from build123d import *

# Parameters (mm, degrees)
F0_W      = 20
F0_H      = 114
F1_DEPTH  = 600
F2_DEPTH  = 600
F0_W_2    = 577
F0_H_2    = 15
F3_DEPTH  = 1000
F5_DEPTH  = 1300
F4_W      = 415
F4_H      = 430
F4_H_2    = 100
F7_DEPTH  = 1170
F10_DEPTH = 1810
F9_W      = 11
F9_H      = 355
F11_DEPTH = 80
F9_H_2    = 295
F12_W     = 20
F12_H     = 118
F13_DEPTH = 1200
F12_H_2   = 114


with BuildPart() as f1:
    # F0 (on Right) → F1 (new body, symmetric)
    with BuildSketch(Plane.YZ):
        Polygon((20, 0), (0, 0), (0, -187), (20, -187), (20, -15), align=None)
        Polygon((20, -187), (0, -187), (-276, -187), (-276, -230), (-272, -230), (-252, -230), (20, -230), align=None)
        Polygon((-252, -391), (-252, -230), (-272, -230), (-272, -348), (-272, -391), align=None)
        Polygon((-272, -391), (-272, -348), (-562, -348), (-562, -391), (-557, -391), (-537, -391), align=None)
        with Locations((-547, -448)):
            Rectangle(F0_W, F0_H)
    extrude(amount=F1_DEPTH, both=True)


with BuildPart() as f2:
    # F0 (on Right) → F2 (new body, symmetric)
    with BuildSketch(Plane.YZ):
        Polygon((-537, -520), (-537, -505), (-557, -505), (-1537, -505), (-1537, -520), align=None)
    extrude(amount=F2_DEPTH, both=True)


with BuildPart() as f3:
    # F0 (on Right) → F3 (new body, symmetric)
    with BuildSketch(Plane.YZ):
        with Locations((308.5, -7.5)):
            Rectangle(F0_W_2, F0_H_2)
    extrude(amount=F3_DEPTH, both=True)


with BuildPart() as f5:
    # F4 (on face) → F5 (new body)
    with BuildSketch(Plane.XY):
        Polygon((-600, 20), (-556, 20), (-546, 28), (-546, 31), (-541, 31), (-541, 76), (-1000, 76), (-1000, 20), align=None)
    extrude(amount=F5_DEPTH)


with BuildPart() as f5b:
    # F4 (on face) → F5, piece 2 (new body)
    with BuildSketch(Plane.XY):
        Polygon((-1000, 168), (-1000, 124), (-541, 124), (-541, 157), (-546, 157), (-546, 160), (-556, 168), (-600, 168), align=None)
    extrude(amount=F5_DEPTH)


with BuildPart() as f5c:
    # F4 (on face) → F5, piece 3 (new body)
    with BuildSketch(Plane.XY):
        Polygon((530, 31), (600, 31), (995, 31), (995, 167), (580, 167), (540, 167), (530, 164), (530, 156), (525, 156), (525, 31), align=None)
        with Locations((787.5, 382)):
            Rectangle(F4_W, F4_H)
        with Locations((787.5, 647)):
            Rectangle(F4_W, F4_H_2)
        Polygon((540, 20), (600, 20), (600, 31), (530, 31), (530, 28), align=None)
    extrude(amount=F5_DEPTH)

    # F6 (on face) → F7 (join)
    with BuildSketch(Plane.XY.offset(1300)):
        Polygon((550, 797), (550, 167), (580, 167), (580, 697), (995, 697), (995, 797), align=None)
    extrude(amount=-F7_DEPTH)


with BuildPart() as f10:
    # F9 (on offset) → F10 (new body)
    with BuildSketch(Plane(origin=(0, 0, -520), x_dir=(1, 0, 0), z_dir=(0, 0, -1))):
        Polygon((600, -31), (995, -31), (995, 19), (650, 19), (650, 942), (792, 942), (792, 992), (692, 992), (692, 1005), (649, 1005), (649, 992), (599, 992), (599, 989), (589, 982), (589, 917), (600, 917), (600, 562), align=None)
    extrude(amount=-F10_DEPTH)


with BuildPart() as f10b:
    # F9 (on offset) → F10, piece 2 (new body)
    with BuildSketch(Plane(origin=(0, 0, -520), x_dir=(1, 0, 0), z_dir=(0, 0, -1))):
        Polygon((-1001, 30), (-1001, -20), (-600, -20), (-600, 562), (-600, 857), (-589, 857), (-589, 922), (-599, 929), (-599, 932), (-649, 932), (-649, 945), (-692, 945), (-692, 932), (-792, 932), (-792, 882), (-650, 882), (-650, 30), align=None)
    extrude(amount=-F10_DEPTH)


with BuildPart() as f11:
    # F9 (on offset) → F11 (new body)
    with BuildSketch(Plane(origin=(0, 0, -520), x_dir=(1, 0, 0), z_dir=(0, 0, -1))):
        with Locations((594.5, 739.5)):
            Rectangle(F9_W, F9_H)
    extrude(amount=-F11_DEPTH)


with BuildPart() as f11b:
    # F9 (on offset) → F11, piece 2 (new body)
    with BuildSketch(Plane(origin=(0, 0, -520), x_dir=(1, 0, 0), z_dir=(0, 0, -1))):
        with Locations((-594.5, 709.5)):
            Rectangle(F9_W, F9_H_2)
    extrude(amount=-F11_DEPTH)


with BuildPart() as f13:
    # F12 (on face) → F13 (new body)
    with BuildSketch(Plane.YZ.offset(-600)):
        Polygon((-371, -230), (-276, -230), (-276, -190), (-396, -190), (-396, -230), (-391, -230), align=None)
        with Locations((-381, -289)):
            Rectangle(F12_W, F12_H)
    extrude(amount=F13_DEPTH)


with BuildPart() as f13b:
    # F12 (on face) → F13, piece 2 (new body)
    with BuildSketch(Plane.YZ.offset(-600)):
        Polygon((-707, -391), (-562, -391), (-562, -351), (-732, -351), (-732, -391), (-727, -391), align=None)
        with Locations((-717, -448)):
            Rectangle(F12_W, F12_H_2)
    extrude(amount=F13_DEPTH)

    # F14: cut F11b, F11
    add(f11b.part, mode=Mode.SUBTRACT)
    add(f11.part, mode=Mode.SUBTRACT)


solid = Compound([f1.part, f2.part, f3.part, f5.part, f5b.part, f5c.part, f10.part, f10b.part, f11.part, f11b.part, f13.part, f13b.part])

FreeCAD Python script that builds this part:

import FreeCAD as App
import Part
import Sketcher
from FreeCAD import Vector

doc = App.newDocument("Part")
params = doc.addObject("Spreadsheet::Sheet", "Params")
for row, (alias, value) in enumerate([
    ("sketch1_width", "20 mm"),
    ("sketch1_width2", "276 mm"),
    ("sketch1_width3", "4 mm"),
    ("sketch1_width4", "290 mm"),
    ("sketch1_width5", "5 mm"),
    ("pad1_length", "1200 mm"),
    ("sketch2_width", "1000 mm"),
    ("sketch2_height", "15 mm"),
    ("pad2_length", "1200 mm"),
    ("sketch3_width", "577 mm"),
    ("sketch3_height", "15 mm"),
    ("pad3_length", "2000 mm"),
    ("sketch4_width", "5 mm"),
    ("sketch4_width2", "459 mm"),
    ("sketch4_width3", "444 mm"),
    ("sketch4_height", "3 mm"),
    ("sketch4_height2", "45 mm"),
    ("pad4_length", "1300 mm"),
    ("sketch5_width", "459 mm"),
    ("sketch5_width2", "5 mm"),
    ("sketch5_width3", "444 mm"),
    ("sketch5_height", "44 mm"),
    ("sketch5_height2", "33 mm"),
    ("pad5_length", "1300 mm"),
    ("sketch6_width", "415 mm"),
    ("sketch6_width2", "40 mm"),
    ("sketch6_width3", "5 mm"),
    ("sketch6_width4", "60 mm"),
    ("sketch6_height", "666 mm"),
    ("pad6_length", "1300 mm"),
    ("sketch7_width", "30 mm"),
    ("sketch7_width2", "415 mm"),
    ("sketch7_height", "630 mm"),
    ("sketch7_height2", "530 mm"),
    ("pad7_length", "1170 mm"),
    ("sketch8_width", "395 mm"),
    ("sketch8_width2", "345 mm"),
    ("sketch8_width3", "142 mm"),
    ("sketch8_width4", "100 mm"),
    ("sketch8_width5", "43 mm"),
    ("pad8_length", "1810 mm"),
    ("sketch9_width", "401 mm"),
    ("sketch9_width2", "11 mm"),
    ("sketch9_width3", "50 mm"),
    ("sketch9_width4", "43 mm"),
    ("sketch9_width5", "100 mm"),
    ("pad9_length", "1810 mm"),
    ("sketch10_width", "11 mm"),
    ("sketch10_height", "355 mm"),
    ("pad10_length", "80 mm"),
    ("sketch11_width", "11 mm"),
    ("sketch11_height", "295 mm"),
    ("pad11_length", "80 mm"),
    ("sketch12_width", "120 mm"),
    ("sketch12_width2", "5 mm"),
    ("sketch12_width3", "20 mm"),
    ("sketch12_height", "40 mm"),
    ("sketch12_height2", "118 mm"),
    ("pad12_length", "1200 mm"),
    ("sketch13_width", "170 mm"),
    ("sketch13_width2", "5 mm"),
    ("sketch13_width3", "20 mm"),
    ("sketch13_height", "40 mm"),
    ("sketch13_height2", "114 mm"),
    ("pad13_length", "1200 mm"),
], start=1):
    params.set(f"A{row}", alias)
    params.set(f"B{row}", "=" + value)
    params.setAlias(f"B{row}", alias)

body = doc.addObject("PartDesign::Body", "Body")

sketch1 = doc.addObject("Sketcher::SketchObject", "Sketch")
body.addObject(sketch1)
sketch1.AttachmentSupport = (doc.YZ_Plane, [""])
sketch1.MapMode = "FlatFace"
sketch1.addGeometry([
    Part.LineSegment(Vector(20, 0, 0), Vector(0, 0, 0)),
    Part.LineSegment(Vector(0, 0, 0), Vector(0, -187, 0)),
    Part.LineSegment(Vector(0, -187, 0), Vector(-276, -187, 0)),
    Part.LineSegment(Vector(-276, -187, 0), Vector(-276, -230, 0)),
    Part.LineSegment(Vector(-276, -230, 0), Vector(-272, -230, 0)),
    Part.LineSegment(Vector(-272, -230, 0), Vector(-272, -348, 0)),
    Part.LineSegment(Vector(-272, -348, 0), Vector(-562, -348, 0)),
    Part.LineSegment(Vector(-562, -348, 0), Vector(-562, -391, 0)),
    Part.LineSegment(Vector(-562, -391, 0), Vector(-557, -391, 0)),
    Part.LineSegment(Vector(-557, -391, 0), Vector(-557, -505, 0)),
    Part.LineSegment(Vector(-557, -505, 0), Vector(-537, -505, 0)),
    Part.LineSegment(Vector(-537, -505, 0), Vector(-537, -391, 0)),
    Part.LineSegment(Vector(-537, -391, 0), Vector(-252, -391, 0)),
    Part.LineSegment(Vector(-252, -391, 0), Vector(-252, -230, 0)),
    Part.LineSegment(Vector(-252, -230, 0), Vector(20, -230, 0)),
    Part.LineSegment(Vector(20, -230, 0), Vector(20, 0, 0)),
], False)
sketch1.addConstraint([
    Sketcher.Constraint("Coincident", 0, 2, 1, 1),
    Sketcher.Constraint("Coincident", 1, 2, 2, 1),
    Sketcher.Constraint("Coincident", 2, 2, 3, 1),
    Sketcher.Constraint("Coincident", 3, 2, 4, 1),
    Sketcher.Constraint("Coincident", 4, 2, 5, 1),
    Sketcher.Constraint("Coincident", 5, 2, 6, 1),
    Sketcher.Constraint("Coincident", 6, 2, 7, 1),
    Sketcher.Constraint("Coincident", 7, 2, 8, 1),
    Sketcher.Constraint("Coincident", 8, 2, 9, 1),
    Sketcher.Constraint("Coincident", 9, 2, 10, 1),
    Sketcher.Constraint("Coincident", 10, 2, 11, 1),
    Sketcher.Constraint("Coincident", 11, 2, 12, 1),
    Sketcher.Constraint("Coincident", 12, 2, 13, 1),
    Sketcher.Constraint("Coincident", 13, 2, 14, 1),
    Sketcher.Constraint("Coincident", 14, 2, 15, 1),
    Sketcher.Constraint("Coincident", 15, 2, 0, 1),
    Sketcher.Constraint("Horizontal", 0),
    Sketcher.Constraint("Vertical", 1),
    Sketcher.Constraint("Horizontal", 2),
    Sketcher.Constraint("Vertical", 3),
    Sketcher.Constraint("Horizontal", 4),
    Sketcher.Constraint("Vertical", 5),
    Sketcher.Constraint("Horizontal", 6),
    Sketcher.Constraint("Vertical", 7),
    Sketcher.Constraint("Horizontal", 8),
    Sketcher.Constraint("Vertical", 9),
    Sketcher.Constraint("Horizontal", 10),
    Sketcher.Constraint("Vertical", 11),
    Sketcher.Constraint("Horizontal", 12),
    Sketcher.Constraint("Vertical", 13),
    Sketcher.Constraint("Horizontal", 14),
    Sketcher.Constraint("Vertical", 15),
    Sketcher.Constraint("Coincident", 0, 2, -1, 1),
    Sketcher.Constraint("Horizontal", 8, 2, 11, 2),
    Sketcher.Constraint("Horizontal", 4, 2, 13, 2),
    Sketcher.Constraint("Equal", 0, 10),
    Sketcher.Constraint("Equal", 3, 7),
    Sketcher.Constraint("DistanceX", 0, 2, 0, 1, 20.0),
    Sketcher.Constraint("DistanceX", 2, 2, 2, 1, 276.0),
    Sketcher.Constraint("DistanceX", 4, 1, 4, 2, 4.0),
    Sketcher.Constraint("DistanceX", 6, 2, 6, 1, 290.0),
    Sketcher.Constraint("DistanceX", 8, 1, 8, 2, 5.0),
    Sketcher.Constraint("DistanceX", 12, 1, 12, 2, 285.0),
    Sketcher.Constraint("DistanceY", 1, 2, 1, 1, 187.0),
    Sketcher.Constraint("DistanceY", 3, 2, 3, 1, 43.0),
    Sketcher.Constraint("DistanceY", 5, 2, 5, 1, 118.0),
    Sketcher.Constraint("DistanceY", 9, 2, 9, 1, 114.0),
])
sketch1.setExpression("Constraints[37]", "Params.sketch1_width")
sketch1.setExpression("Constraints[38]", "Params.sketch1_width2")
sketch1.setExpression("Constraints[39]", "Params.sketch1_width3")
sketch1.setExpression("Constraints[40]", "Params.sketch1_width4")
sketch1.setExpression("Constraints[41]", "Params.sketch1_width5")
pad1 = doc.addObject("PartDesign::Pad", "Pad")
body.addObject(pad1)
pad1.Profile = sketch1
pad1.setExpression("Length", "Params.pad1_length")
pad1.Midplane = True
body2 = doc.addObject("PartDesign::Body", "Body001")

sketch2 = doc.addObject("Sketcher::SketchObject", "Sketch001")
body2.addObject(sketch2)
sketch2.AttachmentSupport = (doc.getObject("YZ_Plane001"), [""])
sketch2.MapMode = "FlatFace"
sketch2.addGeometry([
    Part.LineSegment(Vector(-537, -520, 0), Vector(-537, -505, 0)),
    Part.LineSegment(Vector(-537, -505, 0), Vector(-1537, -505, 0)),
    Part.LineSegment(Vector(-1537, -505, 0), Vector(-1537, -520, 0)),
    Part.LineSegment(Vector(-1537, -520, 0), Vector(-537, -520, 0)),
], False)
sketch2.addConstraint([
    Sketcher.Constraint("Coincident", 0, 2, 1, 1),
    Sketcher.Constraint("Coincident", 1, 2, 2, 1),
    Sketcher.Constraint("Coincident", 2, 2, 3, 1),
    Sketcher.Constraint("Coincident", 3, 2, 0, 1),
    Sketcher.Constraint("Vertical", 0),
    Sketcher.Constraint("Horizontal", 1),
    Sketcher.Constraint("Vertical", 2),
    Sketcher.Constraint("Horizontal", 3),
    Sketcher.Constraint("DistanceX", 1, 2, 1, 1, 1000.0),
    Sketcher.Constraint("DistanceY", 0, 1, 0, 2, 15.0),
    Sketcher.Constraint("DistanceX", 0, 2, -1, 1, 537.0),
    Sketcher.Constraint("DistanceY", 0, 2, -1, 1, 505.0),
])
sketch2.setExpression("Constraints[8]", "Params.sketch2_width")
sketch2.setExpression("Constraints[9]", "Params.sketch2_height")
pad2 = doc.addObject("PartDesign::Pad", "Pad001")
body2.addObject(pad2)
pad2.Profile = sketch2
pad2.setExpression("Length", "Params.pad2_length")
pad2.Midplane = True
body3 = doc.addObject("PartDesign::Body", "Body002")

sketch3 = doc.addObject("Sketcher::SketchObject", "Sketch002")
body3.addObject(sketch3)
sketch3.AttachmentSupport = (doc.getObject("YZ_Plane002"), [""])
sketch3.MapMode = "FlatFace"
sketch3.addGeometry([
    Part.LineSegment(Vector(20, 0, 0), Vector(20, -15, 0)),
    Part.LineSegment(Vector(20, -15, 0), Vector(597, -15, 0)),
    Part.LineSegment(Vector(597, -15, 0), Vector(597, 0, 0)),
    Part.LineSegment(Vector(597, 0, 0), Vector(20, 0, 0)),
], False)
sketch3.addConstraint([
    Sketcher.Constraint("Coincident", 0, 2, 1, 1),
    Sketcher.Constraint("Coincident", 1, 2, 2, 1),
    Sketcher.Constraint("Coincident", 2, 2, 3, 1),
    Sketcher.Constraint("Coincident", 3, 2, 0, 1),
    Sketcher.Constraint("Vertical", 0),
    Sketcher.Constraint("Horizontal", 1),
    Sketcher.Constraint("Vertical", 2),
    Sketcher.Constraint("Horizontal", 3),
    Sketcher.Constraint("PointOnObject", 2, 2, -1),
    Sketcher.Constraint("DistanceX", 1, 1, 1, 2, 577.0),
    Sketcher.Constraint("DistanceY", 0, 2, 0, 1, 15.0),
    Sketcher.Constraint("DistanceX", -1, 1, 0, 2, 20.0),
])
sketch3.setExpression("Constraints[9]", "Params.sketch3_width")
sketch3.setExpression("Constraints[10]", "Params.sketch3_height")
pad3 = doc.addObject("PartDesign::Pad", "Pad002")
body3.addObject(pad3)
pad3.Profile = sketch3
pad3.setExpression("Length", "Params.pad3_length")
pad3.Midplane = True
body4 = doc.addObject("PartDesign::Body", "Body003")

sketch4 = doc.addObject("Sketcher::SketchObject", "Sketch003")
body4.addObject(sketch4)
sketch4.AttachmentSupport = (doc.getObject("XY_Plane003"), [""])
sketch4.MapMode = "FlatFace"
sketch4.addGeometry([
    Part.LineSegment(Vector(-556, 20, 0), Vector(-546, 28, 0)),
    Part.LineSegment(Vector(-546, 28, 0), Vector(-546, 31, 0)),
    Part.LineSegment(Vector(-546, 31, 0), Vector(-541, 31, 0)),
    Part.LineSegment(Vector(-541, 31, 0), Vector(-541, 76, 0)),
    Part.LineSegment(Vector(-541, 76, 0), Vector(-1000, 76, 0)),
    Part.LineSegment(Vector(-1000, 76, 0), Vector(-1000, 20, 0)),
    Part.LineSegment(Vector(-1000, 20, 0), Vector(-556, 20, 0)),
], False)
sketch4.addConstraint([
    Sketcher.Constraint("Coincident", 0, 2, 1, 1),
    Sketcher.Constraint("Coincident", 1, 2, 2, 1),
    Sketcher.Constraint("Coincident", 2, 2, 3, 1),
    Sketcher.Constraint("Coincident", 3, 2, 4, 1),
    Sketcher.Constraint("Coincident", 4, 2, 5, 1),
    Sketcher.Constraint("Coincident", 5, 2, 6, 1),
    Sketcher.Constraint("Coincident", 6, 2, 0, 1),
    Sketcher.Constraint("Vertical", 1),
    Sketcher.Constraint("Horizontal", 2),
    Sketcher.Constraint("Vertical", 3),
    Sketcher.Constraint("Horizontal", 4),
    Sketcher.Constraint("Vertical", 5),
    Sketcher.Constraint("Horizontal", 6),
    Sketcher.Constraint("DistanceX", 2, 1, 2, 2, 5.0),
    Sketcher.Constraint("DistanceX", 4, 2, 4, 1, 459.0),
    Sketcher.Constraint("DistanceX", 6, 1, 6, 2, 444.0),
    Sketcher.Constraint("DistanceY", 1, 1, 1, 2, 3.0),
    Sketcher.Constraint("DistanceY", 3, 1, 3, 2, 45.0),
    Sketcher.Constraint("DistanceY", 5, 2, 5, 1, 56.0),
    Sketcher.Constraint("DistanceX", 0, 2, -1, 1, 546.0),
    Sketcher.Constraint("DistanceY", -1, 1, 0, 2, 28.0),
])
sketch4.setExpression("Constraints[13]", "Params.sketch4_width")
sketch4.setExpression("Constraints[14]", "Params.sketch4_width2")
sketch4.setExpression("Constraints[15]", "Params.sketch4_width3")
sketch4.setExpression("Constraints[16]", "Params.sketch4_height")
sketch4.setExpression("Constraints[17]", "Params.sketch4_height2")
pad4 = doc.addObject("PartDesign::Pad", "Pad003")
body4.addObject(pad4)
pad4.Profile = sketch4
pad4.setExpression("Length", "Params.pad4_length")
body5 = doc.addObject("PartDesign::Body", "Body004")

sketch5 = doc.addObject("Sketcher::SketchObject", "Sketch004")
body5.addObject(sketch5)
sketch5.AttachmentSupport = (doc.getObject("XY_Plane004"), [""])
sketch5.MapMode = "FlatFace"
sketch5.addGeometry([
    Part.LineSegment(Vector(-1000, 168, 0), Vector(-1000, 124, 0)),
    Part.LineSegment(Vector(-1000, 124, 0), Vector(-541, 124, 0)),
    Part.LineSegment(Vector(-541, 124, 0), Vector(-541, 157, 0)),
    Part.LineSegment(Vector(-541, 157, 0), Vector(-546, 157, 0)),
    Part.LineSegment(Vector(-546, 157, 0), Vector(-546, 160, 0)),
    Part.LineSegment(Vector(-546, 160, 0), Vector(-556, 168, 0)),
    Part.LineSegment(Vector(-556, 168, 0), Vector(-1000, 168, 0)),
], False)
sketch5.addConstraint([
    Sketcher.Constraint("Coincident", 0, 2, 1, 1),
    Sketcher.Constraint("Coincident", 1, 2, 2, 1),
    Sketcher.Constraint("Coincident", 2, 2, 3, 1),
    Sketcher.Constraint("Coincident", 3, 2, 4, 1),
    Sketcher.Constraint("Coincident", 4, 2, 5, 1),
    Sketcher.Constraint("Coincident", 5, 2, 6, 1),
    Sketcher.Constraint("Coincident", 6, 2, 0, 1),
    Sketcher.Constraint("Vertical", 0),
    Sketcher.Constraint("Horizontal", 1),
    Sketcher.Constraint("Vertical", 2),
    Sketcher.Constraint("Horizontal", 3),
    Sketcher.Constraint("Vertical", 4),
    Sketcher.Constraint("Horizontal", 6),
    Sketcher.Constraint("DistanceX", 1, 1, 1, 2, 459.0),
    Sketcher.Constraint("DistanceX", 3, 2, 3, 1, 5.0),
    Sketcher.Constraint("DistanceX", 6, 2, 6, 1, 444.0),
    Sketcher.Constraint("DistanceY", 0, 2, 0, 1, 44.0),
    Sketcher.Constraint("DistanceY", 2, 1, 2, 2, 33.0),
    Sketcher.Constraint("DistanceY", 4, 1, 4, 2, 3.0),
    Sketcher.Constraint("DistanceX", 0, 2, -1, 1, 1000.0),
    Sketcher.Constraint("DistanceY", -1, 1, 0, 2, 124.0),
])
sketch5.setExpression("Constraints[13]", "Params.sketch5_width")
sketch5.setExpression("Constraints[14]", "Params.sketch5_width2")
sketch5.setExpression("Constraints[15]", "Params.sketch5_width3")
sketch5.setExpression("Constraints[16]", "Params.sketch5_height")
sketch5.setExpression("Constraints[17]", "Params.sketch5_height2")
pad5 = doc.addObject("PartDesign::Pad", "Pad004")
body5.addObject(pad5)
pad5.Profile = sketch5
pad5.setExpression("Length", "Params.pad5_length")
body6 = doc.addObject("PartDesign::Body", "Body005")

sketch6 = doc.addObject("Sketcher::SketchObject", "Sketch005")
body6.addObject(sketch6)
sketch6.AttachmentSupport = (doc.getObject("XY_Plane005"), [""])
sketch6.MapMode = "FlatFace"
sketch6.addGeometry([
    Part.LineSegment(Vector(995, 31, 0), Vector(995, 697, 0)),
    Part.LineSegment(Vector(995, 697, 0), Vector(580, 697, 0)),
    Part.LineSegment(Vector(580, 697, 0), Vector(580, 167, 0)),
    Part.LineSegment(Vector(580, 167, 0), Vector(540, 167, 0)),
    Part.LineSegment(Vector(540, 167, 0), Vector(530, 164, 0)),
    Part.LineSegment(Vector(530, 164, 0), Vector(530, 156, 0)),
    Part.LineSegment(Vector(530, 156, 0), Vector(525, 156, 0)),
    Part.LineSegment(Vector(525, 156, 0), Vector(525, 31, 0)),
    Part.LineSegment(Vector(525, 31, 0), Vector(530, 31, 0)),
    Part.LineSegment(Vector(530, 31, 0), Vector(530, 28, 0)),
    Part.LineSegment(Vector(530, 28, 0), Vector(540, 20, 0)),
    Part.LineSegment(Vector(540, 20, 0), Vector(600, 20, 0)),
    Part.LineSegment(Vector(600, 20, 0), Vector(600, 31, 0)),
    Part.LineSegment(Vector(600, 31, 0), Vector(995, 31, 0)),
], False)
sketch6.addConstraint([
    Sketcher.Constraint("Coincident", 0, 2, 1, 1),
    Sketcher.Constraint("Coincident", 1, 2, 2, 1),
    Sketcher.Constraint("Coincident", 2, 2, 3, 1),
    Sketcher.Constraint("Coincident", 3, 2, 4, 1),
    Sketcher.Constraint("Coincident", 4, 2, 5, 1),
    Sketcher.Constraint("Coincident", 5, 2, 6, 1),
    Sketcher.Constraint("Coincident", 6, 2, 7, 1),
    Sketcher.Constraint("Coincident", 7, 2, 8, 1),
    Sketcher.Constraint("Coincident", 8, 2, 9, 1),
    Sketcher.Constraint("Coincident", 9, 2, 10, 1),
    Sketcher.Constraint("Coincident", 10, 2, 11, 1),
    Sketcher.Constraint("Coincident", 11, 2, 12, 1),
    Sketcher.Constraint("Coincident", 12, 2, 13, 1),
    Sketcher.Constraint("Coincident", 13, 2, 0, 1),
    Sketcher.Constraint("Vertical", 0),
    Sketcher.Constraint("Horizontal", 1),
    Sketcher.Constraint("Vertical", 2),
    Sketcher.Constraint("Horizontal", 3),
    Sketcher.Constraint("Vertical", 5),
    Sketcher.Constraint("Horizontal", 6),
    Sketcher.Constraint("Vertical", 7),
    Sketcher.Constraint("Horizontal", 8),
    Sketcher.Constraint("Vertical", 9),
    Sketcher.Constraint("Horizontal", 11),
    Sketcher.Constraint("Vertical", 12),
    Sketcher.Constraint("Horizontal", 13),
    Sketcher.Constraint("Horizontal", 8, 2, 12, 2),
    Sketcher.Constraint("Vertical", 5, 2, 8, 2),
    Sketcher.Constraint("Vertical", 3, 2, 10, 2),
    Sketcher.Constraint("DistanceX", 1, 2, 1, 1, 415.0),
    Sketcher.Constraint("DistanceX", 3, 2, 3, 1, 40.0),
    Sketcher.Constraint("DistanceX", 6, 2, 6, 1, 5.0),
    Sketcher.Constraint("DistanceX", 11, 1, 11, 2, 60.0),
    Sketcher.Constraint("DistanceY", 0, 1, 0, 2, 666.0),
    Sketcher.Constraint("DistanceY", 2, 2, 2, 1, 530.0),
    Sketcher.Constraint("DistanceY", 5, 2, 5, 1, 8.0),
    Sketcher.Constraint("DistanceY", 7, 2, 7, 1, 125.0),
    Sketcher.Constraint("DistanceY", 9, 2, 9, 1, 3.0),
    Sketcher.Constraint("DistanceY", 12, 1, 12, 2, 11.0),
    Sketcher.Constraint("DistanceX", -1, 1, 0, 2, 995.0),
    Sketcher.Constraint("DistanceY", -1, 1, 0, 2, 697.0),
    Sketcher.Constraint("DistanceX", -1, 1, 4, 2, 530.0),
])
sketch6.setExpression("Constraints[29]", "Params.sketch6_width")
sketch6.setExpression("Constraints[30]", "Params.sketch6_width2")
sketch6.setExpression("Constraints[31]", "Params.sketch6_width3")
sketch6.setExpression("Constraints[32]", "Params.sketch6_width4")
sketch6.setExpression("Constraints[33]", "Params.sketch6_height")
pad6 = doc.addObject("PartDesign::Pad", "Pad005")
body6.addObject(pad6)
pad6.Profile = sketch6
pad6.setExpression("Length", "Params.pad6_length")

sketch7 = doc.addObject("Sketcher::SketchObject", "Sketch006")
body6.addObject(sketch7)
sketch7.AttachmentSupport = (doc.getObject("XY_Plane005"), [""])
sketch7.MapMode = "FlatFace"
sketch7.AttachmentOffset = App.Placement(Vector(0, 0, 1300), App.Rotation())
sketch7.addGeometry([
    Part.LineSegment(Vector(550, 797, 0), Vector(550, 167, 0)),
    Part.LineSegment(Vector(550, 167, 0), Vector(580, 167, 0)),
    Part.LineSegment(Vector(580, 167, 0), Vector(580, 697, 0)),
    Part.LineSegment(Vector(580, 697, 0), Vector(995, 697, 0)),
    Part.LineSegment(Vector(995, 697, 0), Vector(995, 797, 0)),
    Part.LineSegment(Vector(995, 797, 0), Vector(550, 797, 0)),
], False)
sketch7.addConstraint([
    Sketcher.Constraint("Coincident", 0, 2, 1, 1),
    Sketcher.Constraint("Coincident", 1, 2, 2, 1),
    Sketcher.Constraint("Coincident", 2, 2, 3, 1),
    Sketcher.Constraint("Coincident", 3, 2, 4, 1),
    Sketcher.Constraint("Coincident", 4, 2, 5, 1),
    Sketcher.Constraint("Coincident", 5, 2, 0, 1),
    Sketcher.Constraint("Vertical", 0),
    Sketcher.Constraint("Horizontal", 1),
    Sketcher.Constraint("Vertical", 2),
    Sketcher.Constraint("Horizontal", 3),
    Sketcher.Constraint("Vertical", 4),
    Sketcher.Constraint("Horizontal", 5),
    Sketcher.Constraint("DistanceX", 1, 1, 1, 2, 30.0),
    Sketcher.Constraint("DistanceX", 3, 1, 3, 2, 415.0),
    Sketcher.Constraint("DistanceY", 0, 2, 0, 1, 630.0),
    Sketcher.Constraint("DistanceY", 2, 1, 2, 2, 530.0),
    Sketcher.Constraint("DistanceX", -1, 1, 0, 2, 550.0),
    Sketcher.Constraint("DistanceY", -1, 1, 0, 2, 167.0),
])
sketch7.setExpression("Constraints[12]", "Params.sketch7_width")
sketch7.setExpression("Constraints[13]", "Params.sketch7_width2")
sketch7.setExpression("Constraints[14]", "Params.sketch7_height")
sketch7.setExpression("Constraints[15]", "Params.sketch7_height2")
pad7 = doc.addObject("PartDesign::Pad", "Pad006")
body6.addObject(pad7)
pad7.Profile = sketch7
pad7.setExpression("Length", "Params.pad7_length")
pad7.Reversed = True
body7 = doc.addObject("PartDesign::Body", "Body006")

sketch8 = doc.addObject("Sketcher::SketchObject", "Sketch007")
body7.addObject(sketch8)
sketch8.AttachmentSupport = (doc.getObject("XY_Plane006"), [""])
sketch8.MapMode = "FlatFace"
sketch8.AttachmentOffset = App.Placement(Vector(0, 0, -520), App.Rotation())
sketch8.addGeometry([
    Part.LineSegment(Vector(600, 31, 0), Vector(995, 31, 0)),
    Part.LineSegment(Vector(995, 31, 0), Vector(995, -19, 0)),
    Part.LineSegment(Vector(995, -19, 0), Vector(650, -19, 0)),
    Part.LineSegment(Vector(650, -19, 0), Vector(650, -942, 0)),
    Part.LineSegment(Vector(650, -942, 0), Vector(792, -942, 0)),
    Part.LineSegment(Vector(792, -942, 0), Vector(792, -992, 0)),
    Part.LineSegment(Vector(792, -992, 0), Vector(692, -992, 0)),
    Part.LineSegment(Vector(692, -992, 0), Vector(692, -1005, 0)),
    Part.LineSegment(Vector(692, -1005, 0), Vector(649, -1005, 0)),
    Part.LineSegment(Vector(649, -1005, 0), Vector(649, -992, 0)),
    Part.LineSegment(Vector(649, -992, 0), Vector(599, -992, 0)),
    Part.LineSegment(Vector(599, -992, 0), Vector(599, -989, 0)),
    Part.LineSegment(Vector(599, -989, 0), Vector(589, -982, 0)),
    Part.LineSegment(Vector(589, -982, 0), Vector(589, -917, 0)),
    Part.LineSegment(Vector(589, -917, 0), Vector(600, -917, 0)),
    Part.LineSegment(Vector(600, -917, 0), Vector(600, 31, 0)),
], False)
sketch8.addConstraint([
    Sketcher.Constraint("Coincident", 0, 2, 1, 1),
    Sketcher.Constraint("Coincident", 1, 2, 2, 1),
    Sketcher.Constraint("Coincident", 2, 2, 3, 1),
    Sketcher.Constraint("Coincident", 3, 2, 4, 1),
    Sketcher.Constraint("Coincident", 4, 2, 5, 1),
    Sketcher.Constraint("Coincident", 5, 2, 6, 1),
    Sketcher.Constraint("Coincident", 6, 2, 7, 1),
    Sketcher.Constraint("Coincident", 7, 2, 8, 1),
    Sketcher.Constraint("Coincident", 8, 2, 9, 1),
    Sketcher.Constraint("Coincident", 9, 2, 10, 1),
    Sketcher.Constraint("Coincident", 10, 2, 11, 1),
    Sketcher.Constraint("Coincident", 11, 2, 12, 1),
    Sketcher.Constraint("Coincident", 12, 2, 13, 1),
    Sketcher.Constraint("Coincident", 13, 2, 14, 1),
    Sketcher.Constraint("Coincident", 14, 2, 15, 1),
    Sketcher.Constraint("Coincident", 15, 2, 0, 1),
    Sketcher.Constraint("Horizontal", 0),
    Sketcher.Constraint("Vertical", 1),
    Sketcher.Constraint("Horizontal", 2),
    Sketcher.Constraint("Vertical", 3),
    Sketcher.Constraint("Horizontal", 4),
    Sketcher.Constraint("Vertical", 5),
    Sketcher.Constraint("Horizontal", 6),
    Sketcher.Constraint("Vertical", 7),
    Sketcher.Constraint("Horizontal", 8),
    Sketcher.Constraint("Vertical", 9),
    Sketcher.Constraint("Horizontal", 10),
    Sketcher.Constraint("Vertical", 11),
    Sketcher.Constraint("Vertical", 13),
    Sketcher.Constraint("Horizontal", 14),
    Sketcher.Constraint("Vertical", 15),
    Sketcher.Constraint("Horizontal", 6, 2, 9, 2),
    Sketcher.Constraint("Equal", 10, 1),
    Sketcher.Constraint("Equal", 1, 5),
    Sketcher.Constraint("DistanceX", 0, 1, 0, 2, 395.0),
    Sketcher.Constraint("DistanceX", 2, 2, 2, 1, 345.0),
    Sketcher.Constraint("DistanceX", 4, 1, 4, 2, 142.0),
    Sketcher.Constraint("DistanceX", 6, 2, 6, 1, 100.0),
    Sketcher.Constraint("DistanceX", 8, 2, 8, 1, 43.0),
    Sketcher.Constraint("DistanceX", 10, 2, 10, 1, 50.0),
    Sketcher.Constraint("DistanceX", 14, 1, 14, 2, 11.0),
    Sketcher.Constraint("DistanceY", 3, 2, 3, 1, 923.0),
    Sketcher.Constraint("DistanceY", 7, 2, 7, 1, 13.0),
    Sketcher.Constraint("DistanceY", 11, 1, 11, 2, 3.0),
    Sketcher.Constraint("DistanceY", 13, 1, 13, 2, 65.0),
    Sketcher.Constraint("DistanceY", 15, 1, 15, 2, 948.0),
    Sketcher.Constraint("DistanceX", -1, 1, 0, 2, 995.0),
    Sketcher.Constraint("DistanceY", -1, 1, 0, 2, 31.0),
])
sketch8.setExpression("Constraints[34]", "Params.sketch8_width")
sketch8.setExpression("Constraints[35]", "Params.sketch8_width2")
sketch8.setExpression("Constraints[36]", "Params.sketch8_width3")
sketch8.setExpression("Constraints[37]", "Params.sketch8_width4")
sketch8.setExpression("Constraints[38]", "Params.sketch8_width5")
pad8 = doc.addObject("PartDesign::Pad", "Pad007")
body7.addObject(pad8)
pad8.Profile = sketch8
pad8.setExpression("Length", "Params.pad8_length")
body8 = doc.addObject("PartDesign::Body", "Body007")

sketch9 = doc.addObject("Sketcher::SketchObject", "Sketch008")
body8.addObject(sketch9)
sketch9.AttachmentSupport = (doc.getObject("XY_Plane007"), [""])
sketch9.MapMode = "FlatFace"
sketch9.AttachmentOffset = App.Placement(Vector(0, 0, -520), App.Rotation())
sketch9.addGeometry([
    Part.LineSegment(Vector(-1001, -30, 0), Vector(-1001, 20, 0)),
    Part.LineSegment(Vector(-1001, 20, 0), Vector(-600, 20, 0)),
    Part.LineSegment(Vector(-600, 20, 0), Vector(-600, -857, 0)),
    Part.LineSegment(Vector(-600, -857, 0), Vector(-589, -857, 0)),
    Part.LineSegment(Vector(-589, -857, 0), Vector(-589, -922, 0)),
    Part.LineSegment(Vector(-589, -922, 0), Vector(-599, -929, 0)),
    Part.LineSegment(Vector(-599, -929, 0), Vector(-599, -932, 0)),
    Part.LineSegment(Vector(-599, -932, 0), Vector(-649, -932, 0)),
    Part.LineSegment(Vector(-649, -932, 0), Vector(-649, -945, 0)),
    Part.LineSegment(Vector(-649, -945, 0), Vector(-692, -945, 0)),
    Part.LineSegment(Vector(-692, -945, 0), Vector(-692, -932, 0)),
    Part.LineSegment(Vector(-692, -932, 0), Vector(-792, -932, 0)),
    Part.LineSegment(Vector(-792, -932, 0), Vector(-792, -882, 0)),
    Part.LineSegment(Vector(-792, -882, 0), Vector(-650, -882, 0)),
    Part.LineSegment(Vector(-650, -882, 0), Vector(-650, -30, 0)),
    Part.LineSegment(Vector(-650, -30, 0), Vector(-1001, -30, 0)),
], False)
sketch9.addConstraint([
    Sketcher.Constraint("Coincident", 0, 2, 1, 1),
    Sketcher.Constraint("Coincident", 1, 2, 2, 1),
    Sketcher.Constraint("Coincident", 2, 2, 3, 1),
    Sketcher.Constraint("Coincident", 3, 2, 4, 1),
    Sketcher.Constraint("Coincident", 4, 2, 5, 1),
    Sketcher.Constraint("Coincident", 5, 2, 6, 1),
    Sketcher.Constraint("Coincident", 6, 2, 7, 1),
    Sketcher.Constraint("Coincident", 7, 2, 8, 1),
    Sketcher.Constraint("Coincident", 8, 2, 9, 1),
    Sketcher.Constraint("Coincident", 9, 2, 10, 1),
    Sketcher.Constraint("Coincident", 10, 2, 11, 1),
    Sketcher.Constraint("Coincident", 11, 2, 12, 1),
    Sketcher.Constraint("Coincident", 12, 2, 13, 1),
    Sketcher.Constraint("Coincident", 13, 2, 14, 1),
    Sketcher.Constraint("Coincident", 14, 2, 15, 1),
    Sketcher.Constraint("Coincident", 15, 2, 0, 1),
    Sketcher.Constraint("Vertical", 0),
    Sketcher.Constraint("Horizontal", 1),
    Sketcher.Constraint("Vertical", 2),
    Sketcher.Constraint("Horizontal", 3),
    Sketcher.Constraint("Vertical", 4),
    Sketcher.Constraint("Vertical", 6),
    Sketcher.Constraint("Horizontal", 7),
    Sketcher.Constraint("Vertical", 8),
    Sketcher.Constraint("Horizontal", 9),
    Sketcher.Constraint("Vertical", 10),
    Sketcher.Constraint("Horizontal", 11),
    Sketcher.Constraint("Vertical", 12),
    Sketcher.Constraint("Horizontal", 13),
    Sketcher.Constraint("Vertical", 14),
    Sketcher.Constraint("Horizontal", 15),
    Sketcher.Constraint("Horizontal", 7, 2, 10, 2),
    Sketcher.Constraint("Equal", 7, 0),
    Sketcher.Constraint("Equal", 0, 12),
    Sketcher.Constraint("DistanceX", 1, 1, 1, 2, 401.0),
    Sketcher.Constraint("DistanceX", 3, 1, 3, 2, 11.0),
    Sketcher.Constraint("DistanceX", 7, 2, 7, 1, 50.0),
    Sketcher.Constraint("DistanceX", 9, 2, 9, 1, 43.0),
    Sketcher.Constraint("DistanceX", 11, 2, 11, 1, 100.0),
    Sketcher.Constraint("DistanceX", 13, 1, 13, 2, 142.0),
    Sketcher.Constraint("DistanceX", 15, 2, 15, 1, 351.0),
    Sketcher.Constraint("DistanceY", 2, 2, 2, 1, 877.0),
    Sketcher.Constraint("DistanceY", 4, 2, 4, 1, 65.0),
    Sketcher.Constraint("DistanceY", 6, 2, 6, 1, 3.0),
    Sketcher.Constraint("DistanceY", 8, 2, 8, 1, 13.0),
    Sketcher.Constraint("DistanceY", 14, 1, 14, 2, 852.0),
    Sketcher.Constraint("DistanceX", 0, 2, -1, 1, 1001.0),
    Sketcher.Constraint("DistanceY", -1, 1, 0, 2, 20.0),
])
sketch9.setExpression("Constraints[34]", "Params.sketch9_width")
sketch9.setExpression("Constraints[35]", "Params.sketch9_width2")
sketch9.setExpression("Constraints[36]", "Params.sketch9_width3")
sketch9.setExpression("Constraints[37]", "Params.sketch9_width4")
sketch9.setExpression("Constraints[38]", "Params.sketch9_width5")
pad9 = doc.addObject("PartDesign::Pad", "Pad008")
body8.addObject(pad9)
pad9.Profile = sketch9
pad9.setExpression("Length", "Params.pad9_length")
body9 = doc.addObject("PartDesign::Body", "Body008")

sketch10 = doc.addObject("Sketcher::SketchObject", "Sketch009")
body9.addObject(sketch10)
sketch10.AttachmentSupport = (doc.getObject("XY_Plane008"), [""])
sketch10.MapMode = "FlatFace"
sketch10.AttachmentOffset = App.Placement(Vector(0, 0, -520), App.Rotation())
sketch10.addGeometry([
    Part.LineSegment(Vector(589, -917, 0), Vector(589, -562, 0)),
    Part.LineSegment(Vector(589, -562, 0), Vector(600, -562, 0)),
    Part.LineSegment(Vector(600, -562, 0), Vector(600, -917, 0)),
    Part.LineSegment(Vector(600, -917, 0), Vector(589, -917, 0)),
], False)
sketch10.addConstraint([
    Sketcher.Constraint("Coincident", 0, 2, 1, 1),
    Sketcher.Constraint("Coincident", 1, 2, 2, 1),
    Sketcher.Constraint("Coincident", 2, 2, 3, 1),
    Sketcher.Constraint("Coincident", 3, 2, 0, 1),
    Sketcher.Constraint("Vertical", 0),
    Sketcher.Constraint("Horizontal", 1),
    Sketcher.Constraint("Vertical", 2),
    Sketcher.Constraint("Horizontal", 3),
    Sketcher.Constraint("DistanceX", 1, 1, 1, 2, 11.0),
    Sketcher.Constraint("DistanceY", 0, 1, 0, 2, 355.0),
    Sketcher.Constraint("DistanceX", -1, 1, 0, 2, 589.0),
    Sketcher.Constraint("DistanceY", 0, 2, -1, 1, 562.0),
])
sketch10.setExpression("Constraints[8]", "Params.sketch10_width")
sketch10.setExpression("Constraints[9]", "Params.sketch10_height")
pad10 = doc.addObject("PartDesign::Pad", "Pad009")
body9.addObject(pad10)
pad10.Profile = sketch10
pad10.setExpression("Length", "Params.pad10_length")
body10 = doc.addObject("PartDesign::Body", "Body009")

sketch11 = doc.addObject("Sketcher::SketchObject", "Sketch010")
body10.addObject(sketch11)
sketch11.AttachmentSupport = (doc.getObject("XY_Plane009"), [""])
sketch11.MapMode = "FlatFace"
sketch11.AttachmentOffset = App.Placement(Vector(0, 0, -520), App.Rotation())
sketch11.addGeometry([
    Part.LineSegment(Vector(-600, -857, 0), Vector(-600, -562, 0)),
    Part.LineSegment(Vector(-600, -562, 0), Vector(-589, -562, 0)),
    Part.LineSegment(Vector(-589, -562, 0), Vector(-589, -857, 0)),
    Part.LineSegment(Vector(-589, -857, 0), Vector(-600, -857, 0)),
], False)
sketch11.addConstraint([
    Sketcher.Constraint("Coincident", 0, 2, 1, 1),
    Sketcher.Constraint("Coincident", 1, 2, 2, 1),
    Sketcher.Constraint("Coincident", 2, 2, 3, 1),
    Sketcher.Constraint("Coincident", 3, 2, 0, 1),
    Sketcher.Constraint("Vertical", 0),
    Sketcher.Constraint("Horizontal", 1),
    Sketcher.Constraint("Vertical", 2),
    Sketcher.Constraint("Horizontal", 3),
    Sketcher.Constraint("DistanceX", 1, 1, 1, 2, 11.0),
    Sketcher.Constraint("DistanceY", 0, 1, 0, 2, 295.0),
    Sketcher.Constraint("DistanceX", 0, 2, -1, 1, 600.0),
    Sketcher.Constraint("DistanceY", 0, 2, -1, 1, 562.0),
])
sketch11.setExpression("Constraints[8]", "Params.sketch11_width")
sketch11.setExpression("Constraints[9]", "Params.sketch11_height")
pad11 = doc.addObject("PartDesign::Pad", "Pad010")
body10.addObject(pad11)
pad11.Profile = sketch11
pad11.setExpression("Length", "Params.pad11_length")
body11 = doc.addObject("PartDesign::Body", "Body010")

sketch12 = doc.addObject("Sketcher::SketchObject", "Sketch011")
body11.addObject(sketch12)
sketch12.AttachmentSupport = (doc.getObject("YZ_Plane010"), [""])
sketch12.MapMode = "FlatFace"
sketch12.AttachmentOffset = App.Placement(Vector(0, 0, -600), App.Rotation())
sketch12.addGeometry([
    Part.LineSegment(Vector(-276, -230, 0), Vector(-276, -190, 0)),
    Part.LineSegment(Vector(-276, -190, 0), Vector(-396, -190, 0)),
    Part.LineSegment(Vector(-396, -190, 0), Vector(-396, -230, 0)),
    Part.LineSegment(Vector(-396, -230, 0), Vector(-391, -230, 0)),
    Part.LineSegment(Vector(-391, -230, 0), Vector(-391, -348, 0)),
    Part.LineSegment(Vector(-391, -348, 0), Vector(-371, -348, 0)),
    Part.LineSegment(Vector(-371, -348, 0), Vector(-371, -230, 0)),
    Part.LineSegment(Vector(-371, -230, 0), Vector(-276, -230, 0)),
], False)
sketch12.addConstraint([
    Sketcher.Constraint("Coincident", 0, 2, 1, 1),
    Sketcher.Constraint("Coincident", 1, 2, 2, 1),
    Sketcher.Constraint("Coincident", 2, 2, 3, 1),
    Sketcher.Constraint("Coincident", 3, 2, 4, 1),
    Sketcher.Constraint("Coincident", 4, 2, 5, 1),
    Sketcher.Constraint("Coincident", 5, 2, 6, 1),
    Sketcher.Constraint("Coincident", 6, 2, 7, 1),
    Sketcher.Constraint("Coincident", 7, 2, 0, 1),
    Sketcher.Constraint("Vertical", 0),
    Sketcher.Constraint("Horizontal", 1),
    Sketcher.Constraint("Vertical", 2),
    Sketcher.Constraint("Horizontal", 3),
    Sketcher.Constraint("Vertical", 4),
    Sketcher.Constraint("Horizontal", 5),
    Sketcher.Constraint("Vertical", 6),
    Sketcher.Constraint("Horizontal", 7),
    Sketcher.Constraint("Horizontal", 3, 2, 6, 2),
    Sketcher.Constraint("DistanceX", 1, 2, 1, 1, 120.0),
    Sketcher.Constraint("DistanceX", 3, 1, 3, 2, 5.0),
    Sketcher.Constraint("DistanceX", 5, 1, 5, 2, 20.0),
    Sketcher.Constraint("DistanceY", 0, 1, 0, 2, 40.0),
    Sketcher.Constraint("DistanceY", 4, 2, 4, 1, 118.0),
    Sketcher.Constraint("DistanceX", 0, 2, -1, 1, 276.0),
    Sketcher.Constraint("DistanceY", 0, 2, -1, 1, 190.0),
])
sketch12.setExpression("Constraints[17]", "Params.sketch12_width")
sketch12.setExpression("Constraints[18]", "Params.sketch12_width2")
sketch12.setExpression("Constraints[19]", "Params.sketch12_width3")
sketch12.setExpression("Constraints[20]", "Params.sketch12_height")
sketch12.setExpression("Constraints[21]", "Params.sketch12_height2")
pad12 = doc.addObject("PartDesign::Pad", "Pad011")
body11.addObject(pad12)
pad12.Profile = sketch12
pad12.setExpression("Length", "Params.pad12_length")
body12 = doc.addObject("PartDesign::Body", "Body011")

sketch13 = doc.addObject("Sketcher::SketchObject", "Sketch012")
body12.addObject(sketch13)
sketch13.AttachmentSupport = (doc.getObject("YZ_Plane011"), [""])
sketch13.MapMode = "FlatFace"
sketch13.AttachmentOffset = App.Placement(Vector(0, 0, -600), App.Rotation())
sketch13.addGeometry([
    Part.LineSegment(Vector(-562, -391, 0), Vector(-562, -351, 0)),
    Part.LineSegment(Vector(-562, -351, 0), Vector(-732, -351, 0)),
    Part.LineSegment(Vector(-732, -351, 0), Vector(-732, -391, 0)),
    Part.LineSegment(Vector(-732, -391, 0), Vector(-727, -391, 0)),
    Part.LineSegment(Vector(-727, -391, 0), Vector(-727, -505, 0)),
    Part.LineSegment(Vector(-727, -505, 0), Vector(-707, -505, 0)),
    Part.LineSegment(Vector(-707, -505, 0), Vector(-707, -391, 0)),
    Part.LineSegment(Vector(-707, -391, 0), Vector(-562, -391, 0)),
], False)
sketch13.addConstraint([
    Sketcher.Constraint("Coincident", 0, 2, 1, 1),
    Sketcher.Constraint("Coincident", 1, 2, 2, 1),
    Sketcher.Constraint("Coincident", 2, 2, 3, 1),
    Sketcher.Constraint("Coincident", 3, 2, 4, 1),
    Sketcher.Constraint("Coincident", 4, 2, 5, 1),
    Sketcher.Constraint("Coincident", 5, 2, 6, 1),
    Sketcher.Constraint("Coincident", 6, 2, 7, 1),
    Sketcher.Constraint("Coincident", 7, 2, 0, 1),
    Sketcher.Constraint("Vertical", 0),
    Sketcher.Constraint("Horizontal", 1),
    Sketcher.Constraint("Vertical", 2),
    Sketcher.Constraint("Horizontal", 3),
    Sketcher.Constraint("Vertical", 4),
    Sketcher.Constraint("Horizontal", 5),
    Sketcher.Constraint("Vertical", 6),
    Sketcher.Constraint("Horizontal", 7),
    Sketcher.Constraint("Horizontal", 3, 2, 6, 2),
    Sketcher.Constraint("DistanceX", 1, 2, 1, 1, 170.0),
    Sketcher.Constraint("DistanceX", 3, 1, 3, 2, 5.0),
    Sketcher.Constraint("DistanceX", 5, 1, 5, 2, 20.0),
    Sketcher.Constraint("DistanceY", 0, 1, 0, 2, 40.0),
    Sketcher.Constraint("DistanceY", 4, 2, 4, 1, 114.0),
    Sketcher.Constraint("DistanceX", 0, 2, -1, 1, 562.0),
    Sketcher.Constraint("DistanceY", 0, 2, -1, 1, 351.0),
])
sketch13.setExpression("Constraints[17]", "Params.sketch13_width")
sketch13.setExpression("Constraints[18]", "Params.sketch13_width2")
sketch13.setExpression("Constraints[19]", "Params.sketch13_width3")
sketch13.setExpression("Constraints[20]", "Params.sketch13_height")
sketch13.setExpression("Constraints[21]", "Params.sketch13_height2")
pad13 = doc.addObject("PartDesign::Pad", "Pad012")
body12.addObject(pad13)
pad13.Profile = sketch13
pad13.setExpression("Length", "Params.pad13_length")
doc.recompute()

body13 = doc.addObject("PartDesign::Body", "Body012")
body13.BaseFeature = body10
boolean = doc.addObject("PartDesign::Boolean", "Boolean")
body12.addObject(boolean)
boolean.Type = "Cut"
boolean.addObjects([body13])
doc.recompute()

body14 = doc.addObject("PartDesign::Body", "Body013")
body14.BaseFeature = body9
boolean2 = doc.addObject("PartDesign::Boolean", "Boolean001")
body12.addObject(boolean2)
boolean2.Type = "Cut"
boolean2.addObjects([body14])
doc.recompute()

doc.recompute()
